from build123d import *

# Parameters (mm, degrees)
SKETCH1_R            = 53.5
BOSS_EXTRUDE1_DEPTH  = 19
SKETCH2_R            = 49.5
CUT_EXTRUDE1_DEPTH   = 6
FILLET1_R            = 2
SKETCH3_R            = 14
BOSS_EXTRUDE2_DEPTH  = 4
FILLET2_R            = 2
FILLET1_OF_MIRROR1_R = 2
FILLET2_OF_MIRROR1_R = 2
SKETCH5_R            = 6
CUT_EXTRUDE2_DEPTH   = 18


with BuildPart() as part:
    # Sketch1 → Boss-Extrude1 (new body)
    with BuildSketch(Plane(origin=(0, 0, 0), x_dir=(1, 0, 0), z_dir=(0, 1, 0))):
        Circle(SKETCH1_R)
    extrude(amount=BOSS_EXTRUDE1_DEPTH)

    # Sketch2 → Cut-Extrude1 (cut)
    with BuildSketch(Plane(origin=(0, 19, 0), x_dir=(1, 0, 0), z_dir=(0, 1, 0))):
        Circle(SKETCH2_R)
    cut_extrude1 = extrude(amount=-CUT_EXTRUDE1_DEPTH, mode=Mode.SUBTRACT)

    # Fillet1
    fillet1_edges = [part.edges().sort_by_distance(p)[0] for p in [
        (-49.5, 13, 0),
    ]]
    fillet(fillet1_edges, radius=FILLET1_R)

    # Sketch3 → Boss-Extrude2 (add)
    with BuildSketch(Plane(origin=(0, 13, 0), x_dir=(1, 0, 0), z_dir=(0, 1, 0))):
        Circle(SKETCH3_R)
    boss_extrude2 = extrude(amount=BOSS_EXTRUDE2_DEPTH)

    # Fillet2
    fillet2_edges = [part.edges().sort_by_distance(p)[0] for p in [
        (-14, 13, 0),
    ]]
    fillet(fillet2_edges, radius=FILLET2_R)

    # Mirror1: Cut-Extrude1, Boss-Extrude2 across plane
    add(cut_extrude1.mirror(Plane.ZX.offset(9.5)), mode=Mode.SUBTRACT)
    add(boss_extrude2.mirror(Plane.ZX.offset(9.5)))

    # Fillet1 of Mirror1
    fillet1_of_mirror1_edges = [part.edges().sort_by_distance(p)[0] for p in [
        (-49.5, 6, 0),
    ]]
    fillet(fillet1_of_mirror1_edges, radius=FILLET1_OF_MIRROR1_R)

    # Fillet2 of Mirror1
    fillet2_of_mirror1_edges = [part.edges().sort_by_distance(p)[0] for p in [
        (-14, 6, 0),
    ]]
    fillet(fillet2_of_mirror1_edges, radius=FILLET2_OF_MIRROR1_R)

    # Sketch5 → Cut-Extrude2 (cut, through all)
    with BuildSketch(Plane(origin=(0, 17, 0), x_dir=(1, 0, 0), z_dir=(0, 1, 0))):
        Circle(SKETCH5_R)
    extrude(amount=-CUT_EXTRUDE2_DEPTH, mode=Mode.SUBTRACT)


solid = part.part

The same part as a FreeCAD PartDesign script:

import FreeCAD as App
import Part
import Sketcher
from FreeCAD import Vector


def edges_at(feature, points):
    """Names of the edges that pass closest to the given points."""
    edges = feature.Shape.Edges
    near = lambda p: min(range(len(edges)), key=lambda i: edges[i].distToShape(Part.Vertex(*p))[0])
    return sorted({f"Edge{near(p) + 1}" for p in points})

doc = App.newDocument("Part")
body = doc.addObject("PartDesign::Body", "Body")

sketch1 = body.newObject("Sketcher::SketchObject", "Sketch")
sketch1.AttachmentSupport = (doc.getObject("XZ_Plane"), [""])
sketch1.MapMode = "FlatFace"
sketch1.addGeometry(Part.Circle(Vector(0, 0, 0), Vector(0, 0, 1), 53.5), False)
sketch1.addConstraint([
    Sketcher.Constraint("Coincident", 0, 3, -1, 1),
    Sketcher.Constraint("Diameter", 0, 107.0),
])
pad1 = body.newObject("PartDesign::Pad", "Pad")
pad1.Profile = sketch1
pad1.Length = 19
pad1.Reversed = True

sketch2 = body.newObject("Sketcher::SketchObject", "Sketch001")
sketch2.AttachmentSupport = (doc.getObject("XZ_Plane"), [""])
sketch2.MapMode = "FlatFace"
sketch2.AttachmentOffset = App.Placement(Vector(0, 0, -19), App.Rotation())
sketch2.addGeometry(Part.Circle(Vector(0, 0, 0), Vector(0, 0, 1), 49.5), False)
sketch2.addConstraint([
    Sketcher.Constraint("Coincident", 0, 3, -1, 1),
    Sketcher.Constraint("Diameter", 0, 99.0),
])
pocket1 = body.newObject("PartDesign::Pocket", "Pocket")
pocket1.Profile = sketch2
pocket1.Length = 6
pocket1.Reversed = True
doc.recompute()

fillet = body.newObject("PartDesign::Fillet", "Fillet")
fillet.Base = (pocket1, edges_at(pocket1, [(-49.5, 13, 0)]))
fillet.Radius = 2

sketch3 = body.newObject("Sketcher::SketchObject", "Sketch002")
sketch3.AttachmentSupport = (doc.getObject("XZ_Plane"), [""])
sketch3.MapMode = "FlatFace"
sketch3.AttachmentOffset = App.Placement(Vector(0, 0, -13), App.Rotation())
sketch3.addGeometry(Part.Circle(Vector(0, 0, 0), Vector(0, 0, 1), 14), False)
sketch3.addConstraint([
    Sketcher.Constraint("Coincident", 0, 3, -1, 1),
    Sketcher.Constraint("Diameter", 0, 28.0),
])
pad2 = body.newObject("PartDesign::Pad", "Pad001")
pad2.Profile = sketch3
pad2.Length = 4
pad2.Reversed = True
doc.recompute()

fillet2 = body.newObject("PartDesign::Fillet", "Fillet001")
fillet2.Base = (pad2, edges_at(pad2, [(-14, 13, 0)]))
fillet2.Radius = 2
doc.recompute()

datumplane = body.newObject("PartDesign::Plane", "DatumPlane")
datumplane.AttachmentSupport = (doc.getObject("XZ_Plane"), [""])
datumplane.MapMode = "FlatFace"
datumplane.AttachmentOffset = App.Placement(Vector(0, 0, -9.5), App.Rotation())
mirrored = body.newObject("PartDesign::Mirrored", "Mirrored")
mirrored.Originals = [pocket1, pad2]
mirrored.MirrorPlane = (datumplane, [""])
body.Tip = mirrored
doc.recompute()

fillet3 = body.newObject("PartDesign::Fillet", "Fillet002")
fillet3.Base = (mirrored, edges_at(mirrored, [(-49.5, 6, 0)]))
fillet3.Radius = 2
doc.recompute()

fillet4 = body.newObject("PartDesign::Fillet", "Fillet003")
fillet4.Base = (fillet3, edges_at(fillet3, [(-14, 6, 0)]))
fillet4.Radius = 2

sketch4 = body.newObject("Sketcher::SketchObject", "Sketch003")
sketch4.AttachmentSupport = (doc.getObject("XZ_Plane"), [""])
sketch4.MapMode = "FlatFace"
sketch4.AttachmentOffset = App.Placement(Vector(0, 0, -17), App.Rotation())
sketch4.addGeometry(Part.Circle(Vector(0, 0, 0), Vector(0, 0, 1), 6), False)
sketch4.addConstraint([
    Sketcher.Constraint("Coincident", 0, 3, -1, 1),
    Sketcher.Constraint("Diameter", 0, 12.0),
])
pocket2 = body.newObject("PartDesign::Pocket", "Pocket001")
pocket2.Profile = sketch4
pocket2.Type = "ThroughAll"
pocket2.Reversed = True

doc.recompute()
